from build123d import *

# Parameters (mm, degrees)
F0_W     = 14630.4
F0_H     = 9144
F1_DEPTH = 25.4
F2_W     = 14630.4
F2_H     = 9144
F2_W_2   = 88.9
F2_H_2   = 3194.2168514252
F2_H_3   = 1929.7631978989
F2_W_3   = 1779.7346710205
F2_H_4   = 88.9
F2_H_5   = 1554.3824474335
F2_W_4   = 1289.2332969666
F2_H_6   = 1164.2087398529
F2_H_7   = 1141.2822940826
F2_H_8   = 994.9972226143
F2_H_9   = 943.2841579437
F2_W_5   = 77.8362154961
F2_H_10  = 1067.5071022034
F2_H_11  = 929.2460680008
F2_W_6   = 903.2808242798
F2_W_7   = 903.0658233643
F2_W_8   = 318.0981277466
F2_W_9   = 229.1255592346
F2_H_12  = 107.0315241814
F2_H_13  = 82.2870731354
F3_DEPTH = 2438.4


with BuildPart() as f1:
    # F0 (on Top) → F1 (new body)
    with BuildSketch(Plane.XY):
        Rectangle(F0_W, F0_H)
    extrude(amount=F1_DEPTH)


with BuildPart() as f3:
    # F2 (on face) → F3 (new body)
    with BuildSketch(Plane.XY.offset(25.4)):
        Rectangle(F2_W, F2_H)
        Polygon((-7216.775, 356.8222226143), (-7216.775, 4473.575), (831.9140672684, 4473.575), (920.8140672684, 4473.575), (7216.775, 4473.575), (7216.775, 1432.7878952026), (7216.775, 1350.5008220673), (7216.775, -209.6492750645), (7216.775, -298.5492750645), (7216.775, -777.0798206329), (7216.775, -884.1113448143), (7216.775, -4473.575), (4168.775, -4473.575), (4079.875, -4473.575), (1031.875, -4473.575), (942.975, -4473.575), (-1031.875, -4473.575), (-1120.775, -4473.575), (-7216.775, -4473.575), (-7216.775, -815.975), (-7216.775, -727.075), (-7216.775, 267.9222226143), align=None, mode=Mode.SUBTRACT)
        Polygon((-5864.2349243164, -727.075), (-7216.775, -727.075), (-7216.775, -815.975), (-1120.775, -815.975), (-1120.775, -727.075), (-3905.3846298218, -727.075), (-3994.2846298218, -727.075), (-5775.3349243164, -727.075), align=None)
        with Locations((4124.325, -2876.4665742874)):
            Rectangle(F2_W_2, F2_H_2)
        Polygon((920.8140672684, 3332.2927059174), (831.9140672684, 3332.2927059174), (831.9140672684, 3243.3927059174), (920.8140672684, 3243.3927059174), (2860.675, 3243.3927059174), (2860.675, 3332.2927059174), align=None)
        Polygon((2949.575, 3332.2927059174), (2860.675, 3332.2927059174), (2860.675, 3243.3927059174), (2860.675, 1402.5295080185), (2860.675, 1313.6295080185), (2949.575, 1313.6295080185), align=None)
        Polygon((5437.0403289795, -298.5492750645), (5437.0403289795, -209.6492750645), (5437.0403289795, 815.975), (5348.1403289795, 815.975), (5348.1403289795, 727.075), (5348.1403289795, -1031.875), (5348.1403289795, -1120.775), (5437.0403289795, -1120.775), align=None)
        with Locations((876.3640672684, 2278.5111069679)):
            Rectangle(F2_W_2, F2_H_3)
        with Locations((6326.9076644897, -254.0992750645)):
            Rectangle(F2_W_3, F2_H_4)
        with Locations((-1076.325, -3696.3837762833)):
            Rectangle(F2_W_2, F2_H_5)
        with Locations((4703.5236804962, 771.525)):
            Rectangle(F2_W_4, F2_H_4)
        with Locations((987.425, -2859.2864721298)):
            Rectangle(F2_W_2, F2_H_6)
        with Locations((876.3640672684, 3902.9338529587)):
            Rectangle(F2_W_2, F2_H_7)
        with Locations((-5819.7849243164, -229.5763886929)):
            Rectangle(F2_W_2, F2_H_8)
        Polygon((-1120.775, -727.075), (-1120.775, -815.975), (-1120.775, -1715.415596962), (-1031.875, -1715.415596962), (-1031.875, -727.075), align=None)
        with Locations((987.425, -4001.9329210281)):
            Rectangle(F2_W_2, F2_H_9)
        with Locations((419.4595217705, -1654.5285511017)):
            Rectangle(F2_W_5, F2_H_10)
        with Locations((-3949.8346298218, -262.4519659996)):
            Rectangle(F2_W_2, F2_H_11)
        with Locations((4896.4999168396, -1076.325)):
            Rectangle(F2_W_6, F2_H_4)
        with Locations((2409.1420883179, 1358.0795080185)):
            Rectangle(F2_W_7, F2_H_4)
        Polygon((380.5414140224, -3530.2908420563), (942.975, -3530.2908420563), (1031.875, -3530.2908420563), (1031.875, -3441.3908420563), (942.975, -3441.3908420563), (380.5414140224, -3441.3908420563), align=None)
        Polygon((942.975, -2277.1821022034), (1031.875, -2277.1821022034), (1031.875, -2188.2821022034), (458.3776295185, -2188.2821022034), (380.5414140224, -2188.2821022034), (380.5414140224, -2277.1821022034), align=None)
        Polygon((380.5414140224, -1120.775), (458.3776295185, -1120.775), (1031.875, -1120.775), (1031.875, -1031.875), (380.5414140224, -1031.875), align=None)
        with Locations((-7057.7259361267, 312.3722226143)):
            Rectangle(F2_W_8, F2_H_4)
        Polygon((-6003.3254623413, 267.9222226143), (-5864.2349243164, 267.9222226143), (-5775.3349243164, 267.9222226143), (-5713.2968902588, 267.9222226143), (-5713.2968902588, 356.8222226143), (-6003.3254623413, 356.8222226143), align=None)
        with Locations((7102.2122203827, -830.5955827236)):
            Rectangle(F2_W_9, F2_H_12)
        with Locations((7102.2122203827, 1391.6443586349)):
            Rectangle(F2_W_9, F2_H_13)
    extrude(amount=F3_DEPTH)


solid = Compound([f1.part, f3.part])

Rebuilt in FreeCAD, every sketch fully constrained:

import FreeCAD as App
import Part
import Sketcher
Q = App.Units.Quantity


def add_polygon(sketch, points):
    """Adds a closed chain of lines whose ends are joined by coincident constraints."""
    first, n = sketch.GeometryCount, len(points)
    for a, b in zip(points, points[1:] + points[:1]):
        sketch.addGeometry(Part.LineSegment(App.Vector(*a, 0), App.Vector(*b, 0)), False)
    for i in range(n):
        sketch.addConstraint(Sketcher.Constraint("Coincident", first + i, 2, first + (i + 1) % n, 1))

doc = App.newDocument("Part")
body = doc.addObject("PartDesign::Body", "Body")

# Sketch on XY plane
sketch1 = doc.addObject("Sketcher::SketchObject", "Sketch")
body.addObject(sketch1)
sketch1.AttachmentSupport = (doc.XY_Plane, [""])
sketch1.MapMode = "FlatFace"
add_polygon(sketch1, [(-7315, 4572), (-7315, -4572), (7315, -4572), (7315, 4572)])  # lines 0-3
sketch1.addConstraint(Sketcher.Constraint("Vertical", 0))
sketch1.addConstraint(Sketcher.Constraint("Horizontal", 1))
sketch1.addConstraint(Sketcher.Constraint("Vertical", 2))
sketch1.addConstraint(Sketcher.Constraint("Horizontal", 3))
sketch1.addConstraint(Sketcher.Constraint("Symmetric", 0, 2, 2, 2, -1, 1))
sketch1.addConstraint(Sketcher.Constraint("DistanceX", 1, 1, 1, 2, Q("576 in")))
sketch1.addConstraint(Sketcher.Constraint("DistanceY", 0, 2, 0, 1, Q("360 in")))
pad1 = doc.addObject("PartDesign::Pad", "Pad")
body.addObject(pad1)
pad1.Profile = sketch1
pad1.Length = Q("1 in")
body2 = doc.addObject("PartDesign::Body", "Body001")

# Sketch on XY plane
sketch2 = doc.addObject("Sketcher::SketchObject", "Sketch001")
body2.addObject(sketch2)
sketch2.AttachmentSupport = (doc.getObject("XY_Plane001"), [""])
sketch2.MapMode = "FlatFace"
sketch2.AttachmentOffset = App.Placement(App.Vector(0, 0, 1 * 25.4), App.Rotation())
add_polygon(sketch2, [(-7315, 4572), (-7315, -4572), (7315, -4572), (7315, 4572)])  # lines 0-3
add_polygon(sketch2, [(-7217, -4474), (-7217, -816), (-1121, -816), (-1121, -1715), (-1032, -1715), (-1032, -727), (-3905, -727), (-3905, 202), (-3994, 202), (-3994, -727), (-5775, -727), (-5775, 268), (-5713, 268), (-5713, 357), (-6003, 357), (-6003, 268), (-5864, 268), (-5864, -727), (-7217, -727), (-7217, 268), (-6899, 268), (-6899, 357), (-7217, 357), (-7217, 4474), (832, 4474), (832, 1314), (921, 1314), (921, 3243), (2861, 3243), (2861, 1403), (1958, 1403), (1958, 1314), (2950, 1314), (2950, 3332), (921, 3332), (921, 4474), (7217, 4474), (7217, 1433), (6988, 1433), (6988, 1351), (7217, 1351), (7217, -210), (5437, -210), (5437, 816), (4059, 816), (4059, 727), (5348, 727), (5348, -1032), (4445, -1032), (4445, -1121), (5437, -1121), (5437, -299), (7217, -299), (7217, -777), (6988, -777), (6988, -884), (7217, -884), (7217, -4474), (4169, -4474), (4169, -1279), (4080, -1279), (4080, -4474), (1032, -4474), (1032, -2188), (458, -2188), (458, -1121), (1032, -1121), (1032, -1032), (381, -1032), (381, -2277), (943, -2277), (943, -3441), (381, -3441), (381, -3530), (943, -3530), (943, -4474), (-1032, -4474), (-1032, -2919), (-1121, -2919), (-1121, -4474)])  # lines 4-83
sketch2.addConstraint(Sketcher.Constraint("Vertical", 0))
sketch2.addConstraint(Sketcher.Constraint("Horizontal", 1))
sketch2.addConstraint(Sketcher.Constraint("Vertical", 2))
sketch2.addConstraint(Sketcher.Constraint("Horizontal", 3))
sketch2.addConstraint(Sketcher.Constraint("Vertical", 4))
sketch2.addConstraint(Sketcher.Constraint("Horizontal", 5))
sketch2.addConstraint(Sketcher.Constraint("Vertical", 6))
sketch2.addConstraint(Sketcher.Constraint("Horizontal", 7))
sketch2.addConstraint(Sketcher.Constraint("Vertical", 8))
sketch2.addConstraint(Sketcher.Constraint("Horizontal", 9))
sketch2.addConstraint(Sketcher.Constraint("Vertical", 10))
sketch2.addConstraint(Sketcher.Constraint("Horizontal", 11))
sketch2.addConstraint(Sketcher.Constraint("Vertical", 12))
sketch2.addConstraint(Sketcher.Constraint("Horizontal", 13))
sketch2.addConstraint(Sketcher.Constraint("Vertical", 14))
sketch2.addConstraint(Sketcher.Constraint("Horizontal", 15))
sketch2.addConstraint(Sketcher.Constraint("Vertical", 16))
sketch2.addConstraint(Sketcher.Constraint("Horizontal", 17))
sketch2.addConstraint(Sketcher.Constraint("Vertical", 18))
sketch2.addConstraint(Sketcher.Constraint("Horizontal", 19))
sketch2.addConstraint(Sketcher.Constraint("Vertical", 20))
sketch2.addConstraint(Sketcher.Constraint("Horizontal", 21))
sketch2.addConstraint(Sketcher.Constraint("Vertical", 22))
sketch2.addConstraint(Sketcher.Constraint("Horizontal", 23))
sketch2.addConstraint(Sketcher.Constraint("Vertical", 24))
sketch2.addConstraint(Sketcher.Constraint("Horizontal", 25))
sketch2.addConstraint(Sketcher.Constraint("Vertical", 26))
sketch2.addConstraint(Sketcher.Constraint("Horizontal", 27))
sketch2.addConstraint(Sketcher.Constraint("Vertical", 28))
sketch2.addConstraint(Sketcher.Constraint("Horizontal", 29))
sketch2.addConstraint(Sketcher.Constraint("Vertical", 30))
sketch2.addConstraint(Sketcher.Constraint("Horizontal", 31))
sketch2.addConstraint(Sketcher.Constraint("Vertical", 32))
sketch2.addConstraint(Sketcher.Constraint("Horizontal", 33))
sketch2.addConstraint(Sketcher.Constraint("Vertical", 34))
sketch2.addConstraint(Sketcher.Constraint("Horizontal", 35))
sketch2.addConstraint(Sketcher.Constraint("Vertical", 36))
sketch2.addConstraint(Sketcher.Constraint("Horizontal", 37))
sketch2.addConstraint(Sketcher.Constraint("Vertical", 38))
sketch2.addConstraint(Sketcher.Constraint("Horizontal", 39))
sketch2.addConstraint(Sketcher.Constraint("Vertical", 40))
sketch2.addConstraint(Sketcher.Constraint("Horizontal", 41))
sketch2.addConstraint(Sketcher.Constraint("Vertical", 42))
sketch2.addConstraint(Sketcher.Constraint("Horizontal", 43))
sketch2.addConstraint(Sketcher.Constraint("Vertical", 44))
sketch2.addConstraint(Sketcher.Constraint("Horizontal", 45))
sketch2.addConstraint(Sketcher.Constraint("Vertical", 46))
sketch2.addConstraint(Sketcher.Constraint("Horizontal", 47))
sketch2.addConstraint(Sketcher.Constraint("Vertical", 48))
sketch2.addConstraint(Sketcher.Constraint("Horizontal", 49))
sketch2.addConstraint(Sketcher.Constraint("Vertical", 50))
sketch2.addConstraint(Sketcher.Constraint("Horizontal", 51))
sketch2.addConstraint(Sketcher.Constraint("Vertical", 52))
sketch2.addConstraint(Sketcher.Constraint("Horizontal", 53))
sketch2.addConstraint(Sketcher.Constraint("Vertical", 54))
sketch2.addConstraint(Sketcher.Constraint("Horizontal", 55))
sketch2.addConstraint(Sketcher.Constraint("Vertical", 56))
sketch2.addConstraint(Sketcher.Constraint("Horizontal", 57))
sketch2.addConstraint(Sketcher.Constraint("Vertical", 58))
sketch2.addConstraint(Sketcher.Constraint("Horizontal", 59))
sketch2.addConstraint(Sketcher.Constraint("Vertical", 60))
sketch2.addConstraint(Sketcher.Constraint("Horizontal", 61))
sketch2.addConstraint(Sketcher.Constraint("Vertical", 62))
sketch2.addConstraint(Sketcher.Constraint("Horizontal", 63))
sketch2.addConstraint(Sketcher.Constraint("Vertical", 64))
sketch2.addConstraint(Sketcher.Constraint("Horizontal", 65))
sketch2.addConstraint(Sketcher.Constraint("Vertical", 66))
sketch2.addConstraint(Sketcher.Constraint("Horizontal", 67))
sketch2.addConstraint(Sketcher.Constraint("Vertical", 68))
sketch2.addConstraint(Sketcher.Constraint("Horizontal", 69))
sketch2.addConstraint(Sketcher.Constraint("Vertical", 70))
sketch2.addConstraint(Sketcher.Constraint("Horizontal", 71))
sketch2.addConstraint(Sketcher.Constraint("Vertical", 72))
sketch2.addConstraint(Sketcher.Constraint("Horizontal", 73))
sketch2.addConstraint(Sketcher.Constraint("Vertical", 74))
sketch2.addConstraint(Sketcher.Constraint("Horizontal", 75))
sketch2.addConstraint(Sketcher.Constraint("Vertical", 76))
sketch2.addConstraint(Sketcher.Constraint("Horizontal", 77))
sketch2.addConstraint(Sketcher.Constraint("Vertical", 78))
sketch2.addConstraint(Sketcher.Constraint("Horizontal", 79))
sketch2.addConstraint(Sketcher.Constraint("Vertical", 80))
sketch2.addConstraint(Sketcher.Constraint("Horizontal", 81))
sketch2.addConstraint(Sketcher.Constraint("Vertical", 82))
sketch2.addConstraint(Sketcher.Constraint("Horizontal", 83))
sketch2.addConstraint(Sketcher.Constraint("Symmetric", 0, 2, 2, 2, -1, 1))
sketch2.addConstraint(Sketcher.Constraint("Symmetric", 26, 2, 60, 2, -1, 1))
sketch2.addConstraint(Sketcher.Constraint("Symmetric", 39, 2, 83, 2, -1, 1))
sketch2.addConstraint(Sketcher.Constraint("Symmetric", 26, 2, 39, 2, -2))
sketch2.addConstraint(Sketcher.Constraint("Symmetric", 65, 2, 79, 2, -2))
sketch2.addConstraint(Sketcher.Constraint("Horizontal", 9, 2, 12, 2))
sketch2.addConstraint(Sketcher.Constraint("Horizontal", 15, 2, 18, 2))
sketch2.addConstraint(Sketcher.Constraint("Horizontal", 13, 2, 20, 2))
sketch2.addConstraint(Sketcher.Constraint("Horizontal", 19, 2, 22, 2))
sketch2.addConstraint(Sketcher.Constraint("Horizontal", 17, 2, 24, 2))
sketch2.addConstraint(Sketcher.Constraint("Horizontal", 29, 2, 34, 2))
sketch2.addConstraint(Sketcher.Constraint("Horizontal", 61, 2, 64, 2))
sketch2.addConstraint(Sketcher.Constraint("Horizontal", 53, 2, 68, 2))
sketch2.addConstraint(Sketcher.Constraint("Horizontal", 51, 2, 70, 2))
sketch2.addConstraint(Sketcher.Constraint("Vertical", 4, 2, 21, 2))
sketch2.addConstraint(Sketcher.Constraint("Vertical", 30, 2, 37, 2))
sketch2.addConstraint(Sketcher.Constraint("Vertical", 40, 2, 43, 2))
sketch2.addConstraint(Sketcher.Constraint("Vertical", 46, 2, 53, 2))
sketch2.addConstraint(Sketcher.Constraint("Vertical", 44, 2, 55, 2))
sketch2.addConstraint(Sketcher.Constraint("Vertical", 42, 2, 57, 2))
sketch2.addConstraint(Sketcher.Constraint("Vertical", 66, 2, 69, 2))
sketch2.addConstraint(Sketcher.Constraint("Vertical", 72, 2, 75, 2))
sketch2.addConstraint(Sketcher.Constraint("Vertical", 74, 2, 77, 2))
sketch2.addConstraint(Sketcher.Constraint("Vertical", 8, 2, 79, 2))
sketch2.addConstraint(Sketcher.Constraint("Vertical", 6, 2, 81, 2))
sketch2.addConstraint(Sketcher.Constraint("Equal", 7, 11))
sketch2.addConstraint(Sketcher.Constraint("Equal", 11, 29))
sketch2.addConstraint(Sketcher.Constraint("Equal", 29, 63))
sketch2.addConstraint(Sketcher.Constraint("Equal", 61, 65))
sketch2.addConstraint(Sketcher.Constraint("Equal", 81, 16))
sketch2.addConstraint(Sketcher.Constraint("Equal", 24, 34))
sketch2.addConstraint(Sketcher.Constraint("Equal", 34, 48))
sketch2.addConstraint(Sketcher.Constraint("Equal", 48, 52))
sketch2.addConstraint(Sketcher.Constraint("Equal", 70, 76))
sketch2.addConstraint(Sketcher.Constraint("DistanceX", 1, 1, 1, 2, Q("576 in")))
sketch2.addConstraint(Sketcher.Constraint("DistanceX", 5, 1, 5, 2, Q("240 in")))
sketch2.addConstraint(Sketcher.Constraint("DistanceY", 0, 2, 0, 1, Q("360 in")))
sketch2.addConstraint(Sketcher.Constraint("DistanceY", 4, 1, 4, 2, Q("144 in")))
sketch2.addConstraint(Sketcher.Constraint("DistanceX", 7, 1, 7, 2, Q("3.5 in")))
sketch2.addConstraint(Sketcher.Constraint("DistanceX", 79, 2, 79, 1, Q("77.75 in")))
sketch2.addConstraint(Sketcher.Constraint("DistanceY", 50, 2, 50, 1, Q("69.25 in")))
sketch2.addConstraint(Sketcher.Constraint("DistanceX", 4, 2, -1, 1, Q("284.125 in")))
sketch2.addConstraint(Sketcher.Constraint("DistanceY", 4, 2, -1, 1, Q("32.125 in")))
sketch2.addConstraint(Sketcher.Constraint("DistanceY", 8, 2, -1, 1, Q("28.625 in")))
sketch2.addConstraint(Sketcher.Constraint("DistanceX", -1, 1, 31, 2, Q("112.625 in")))
sketch2.addConstraint(Sketcher.Constraint("DistanceX", -1, 1, 35, 2, Q("116.125 in")))
sketch2.addConstraint(Sketcher.Constraint("DistanceY", -1, 1, 46, 2, Q("32.125 in")))
sketch2.addConstraint(Sketcher.Constraint("DistanceX", 9, 2, 9, 1, 2873.50963))
sketch2.addConstraint(Sketcher.Constraint("DistanceX", 19, 1, 19, 2, 139.090538))
sketch2.addConstraint(Sketcher.Constraint("DistanceX", 41, 2, 41, 1, 229.125559))
sketch2.addConstraint(Sketcher.Constraint("DistanceX", 45, 2, 45, 1, 1779.734671))
sketch2.addConstraint(Sketcher.Constraint("DistanceX", 67, 2, 67, 1, 573.49737))
sketch2.addConstraint(Sketcher.Constraint("DistanceY", 10, 1, 10, 2, 929.246068))
sketch2.addConstraint(Sketcher.Constraint("DistanceY", 28, 2, 28, 1, 3159.945492))
sketch2.addConstraint(Sketcher.Constraint("DistanceY", 62, 1, 62, 2, 3194.216851))
sketch2.addConstraint(Sketcher.Constraint("DistanceY", 74, 2, 74, 1, 1164.20874))
sketch2.addConstraint(Sketcher.Constraint("DistanceX", 13, 2, 13, 1, 1781.050294))
sketch2.addConstraint(Sketcher.Constraint("DistanceX", 15, 1, 15, 2, 62.038034))
sketch2.addConstraint(Sketcher.Constraint("DistanceX", 17, 2, 17, 1, 290.028572))
sketch2.addConstraint(Sketcher.Constraint("DistanceX", 23, 1, 23, 2, 318.098128))
sketch2.addConstraint(Sketcher.Constraint("DistanceX", 27, 1, 27, 2, 8048.689067))
sketch2.addConstraint(Sketcher.Constraint("DistanceX", 33, 2, 33, 1, 903.065823))
sketch2.addConstraint(Sketcher.Constraint("DistanceX", 47, 2, 47, 1, 1378.133297))
sketch2.addConstraint(Sketcher.Constraint("DistanceX", 49, 1, 49, 2, 1289.233297))
sketch2.addConstraint(Sketcher.Constraint("DistanceX", 51, 2, 51, 1, 903.280824))
sketch2.addConstraint(Sketcher.Constraint("DistanceX", 71, 2, 71, 1, 651.333586))
sketch2.addConstraint(Sketcher.Constraint("DistanceY", 6, 2, 6, 1, 899.440597))
sketch2.addConstraint(Sketcher.Constraint("DistanceY", 14, 1, 14, 2, 994.997223))
sketch2.addConstraint(Sketcher.Constraint("DistanceY", 30, 1, 30, 2, 1929.763198))
sketch2.addConstraint(Sketcher.Constraint("DistanceY", 36, 1, 36, 2, 2018.663198))
sketch2.addConstraint(Sketcher.Constraint("DistanceY", 40, 2, 40, 1, 3040.787105))
sketch2.addConstraint(Sketcher.Constraint("DistanceY", 42, 2, 42, 1, 82.287073))
sketch2.addConstraint(Sketcher.Constraint("DistanceY", 44, 2, 44, 1, 1560.150097))
sketch2.addConstraint(Sketcher.Constraint("DistanceY", 54, 1, 54, 2, 822.225725))
sketch2.addConstraint(Sketcher.Constraint("DistanceY", 56, 2, 56, 1, 478.530546))
sketch2.addConstraint(Sketcher.Constraint("DistanceY", 58, 2, 58, 1, 107.031524))
sketch2.addConstraint(Sketcher.Constraint("DistanceY", 66, 1, 66, 2, 2285.292898))
sketch2.addConstraint(Sketcher.Constraint("DistanceY", 72, 2, 72, 1, 1245.307102))
sketch2.addConstraint(Sketcher.Constraint("DistanceY", 80, 1, 80, 2, 1554.382447))
pad2 = doc.addObject("PartDesign::Pad", "Pad001")
body2.addObject(pad2)
pad2.Profile = sketch2
pad2.Length = Q("96 in")

doc.recompute()
